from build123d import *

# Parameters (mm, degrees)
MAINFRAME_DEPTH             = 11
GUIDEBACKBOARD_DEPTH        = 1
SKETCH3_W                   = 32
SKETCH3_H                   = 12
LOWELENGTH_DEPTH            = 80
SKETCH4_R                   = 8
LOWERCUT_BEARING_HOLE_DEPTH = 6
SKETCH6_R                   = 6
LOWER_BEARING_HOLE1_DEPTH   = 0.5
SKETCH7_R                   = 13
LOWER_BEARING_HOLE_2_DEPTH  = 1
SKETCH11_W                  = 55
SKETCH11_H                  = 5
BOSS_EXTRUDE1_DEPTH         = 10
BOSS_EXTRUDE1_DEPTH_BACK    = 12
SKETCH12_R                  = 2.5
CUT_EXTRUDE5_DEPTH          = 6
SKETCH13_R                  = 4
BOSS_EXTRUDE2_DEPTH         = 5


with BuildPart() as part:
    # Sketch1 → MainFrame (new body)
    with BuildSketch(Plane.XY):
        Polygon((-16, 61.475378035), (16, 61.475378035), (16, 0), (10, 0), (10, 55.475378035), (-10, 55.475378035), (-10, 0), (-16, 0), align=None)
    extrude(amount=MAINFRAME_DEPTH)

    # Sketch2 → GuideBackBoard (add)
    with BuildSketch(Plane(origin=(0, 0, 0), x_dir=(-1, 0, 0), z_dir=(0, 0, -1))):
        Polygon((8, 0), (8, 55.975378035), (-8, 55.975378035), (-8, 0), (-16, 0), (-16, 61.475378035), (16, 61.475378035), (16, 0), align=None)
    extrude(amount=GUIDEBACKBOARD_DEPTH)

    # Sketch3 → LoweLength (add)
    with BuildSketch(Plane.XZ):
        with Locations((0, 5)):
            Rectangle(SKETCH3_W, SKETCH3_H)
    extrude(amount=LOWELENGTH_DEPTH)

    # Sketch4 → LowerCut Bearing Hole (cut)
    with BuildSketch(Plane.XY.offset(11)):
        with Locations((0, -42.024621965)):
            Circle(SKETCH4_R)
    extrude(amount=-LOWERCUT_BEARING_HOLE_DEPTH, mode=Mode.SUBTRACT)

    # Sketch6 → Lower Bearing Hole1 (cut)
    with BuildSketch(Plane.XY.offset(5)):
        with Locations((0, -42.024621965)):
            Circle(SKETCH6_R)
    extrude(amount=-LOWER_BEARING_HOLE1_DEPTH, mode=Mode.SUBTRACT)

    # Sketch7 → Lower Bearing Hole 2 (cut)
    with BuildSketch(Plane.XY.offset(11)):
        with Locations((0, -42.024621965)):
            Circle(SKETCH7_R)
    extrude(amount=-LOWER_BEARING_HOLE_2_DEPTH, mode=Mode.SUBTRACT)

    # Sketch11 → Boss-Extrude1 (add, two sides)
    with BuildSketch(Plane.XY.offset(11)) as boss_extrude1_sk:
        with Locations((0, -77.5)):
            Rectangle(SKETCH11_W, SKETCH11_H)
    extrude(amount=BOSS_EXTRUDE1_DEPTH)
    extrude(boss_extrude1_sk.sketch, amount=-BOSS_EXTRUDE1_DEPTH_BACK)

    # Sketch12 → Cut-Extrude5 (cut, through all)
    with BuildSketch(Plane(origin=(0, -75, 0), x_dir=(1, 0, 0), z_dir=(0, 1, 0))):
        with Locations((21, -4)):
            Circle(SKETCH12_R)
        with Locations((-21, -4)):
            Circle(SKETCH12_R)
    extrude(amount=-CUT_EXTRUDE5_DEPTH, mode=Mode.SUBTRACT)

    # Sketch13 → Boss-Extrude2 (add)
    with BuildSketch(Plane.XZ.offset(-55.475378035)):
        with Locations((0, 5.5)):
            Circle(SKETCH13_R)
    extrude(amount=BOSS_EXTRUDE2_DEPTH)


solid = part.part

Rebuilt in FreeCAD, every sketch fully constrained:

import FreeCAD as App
import Part
import Sketcher

V = App.Vector
Q = App.Units.Quantity


def add_polygon(sketch, points):
    """Adds a closed chain of lines whose ends are joined by coincident constraints."""
    first, n = sketch.GeometryCount, len(points)
    for a, b in zip(points, points[1:] + points[:1]):
        sketch.addGeometry(Part.LineSegment(App.Vector(*a, 0), App.Vector(*b, 0)), False)
    for i in range(n):
        sketch.addConstraint(Sketcher.Constraint("Coincident", first + i, 2, first + (i + 1) % n, 1))

doc = App.newDocument("Part")
body = doc.addObject("PartDesign::Body", "Body")

# Sketch on XY plane
sketch1 = body.newObject("Sketcher::SketchObject", "Sketch")
sketch1.AttachmentSupport = (doc.getObject("XY_Plane"), [""])
sketch1.MapMode = "FlatFace"
add_polygon(sketch1, [(16, 61.475378), (-16, 61.475378), (-16, 0), (-10, 0), (-10, 55.475378), (10, 55.475378), (10, 0), (16, 0)])  # lines 0-7
sketch1.addConstraint([
    Sketcher.Constraint("Horizontal", 0),
    Sketcher.Constraint("Vertical", 1),
    Sketcher.Constraint("Horizontal", 2),
    Sketcher.Constraint("Vertical", 3),
    Sketcher.Constraint("Horizontal", 4),
    Sketcher.Constraint("Vertical", 5),
    Sketcher.Constraint("Horizontal", 6),
    Sketcher.Constraint("Vertical", 7),
    Sketcher.Constraint("Symmetric", 2, 2, 5, 2, -1, 1),
    Sketcher.Constraint("Symmetric", 1, 2, 6, 2, -2),
    Sketcher.Constraint("DistanceX", 0, 2, 0, 1, Q("32 mm")),
    Sketcher.Constraint("DistanceX", 2, 1, 2, 2, Q("6 mm")),
    Sketcher.Constraint("DistanceY", 3, 2, 0, 2, Q("6 mm")),
    Sketcher.Constraint("DistanceY", 1, 2, 1, 1, Q("61.475378 mm")),
])
pad1 = body.newObject("PartDesign::Pad", "Pad")
pad1.Profile = sketch1
pad1.Length = 11

# Sketch on XY plane
sketch2 = body.newObject("Sketcher::SketchObject", "Sketch001")
sketch2.AttachmentSupport = (doc.getObject("XY_Plane"), [""])
sketch2.MapMode = "FlatFace"
add_polygon(sketch2, [(-8, 55.975378), (-8, 0), (-16, 0), (-16, 61.475378), (16, 61.475378), (16, 0), (8, 0), (8, 55.975378)])  # lines 0-7
sketch2.addConstraint([
    Sketcher.Constraint("Vertical", 0),
    Sketcher.Constraint("Horizontal", 1),
    Sketcher.Constraint("Vertical", 2),
    Sketcher.Constraint("Horizontal", 3),
    Sketcher.Constraint("Vertical", 4),
    Sketcher.Constraint("Horizontal", 5),
    Sketcher.Constraint("Vertical", 6),
    Sketcher.Constraint("Horizontal", 7),
    Sketcher.Constraint("Symmetric", 1, 2, 4, 2, -1, 1),
    Sketcher.Constraint("Symmetric", 0, 2, 5, 2, -2),
    Sketcher.Constraint("DistanceX", 1, 2, 1, 1, Q("8 mm")),
    Sketcher.Constraint("DistanceX", 3, 1, 3, 2, Q("32 mm")),
    Sketcher.Constraint("DistanceY", 6, 2, 3, 2, Q("5.5 mm")),
    Sketcher.Constraint("DistanceY", 0, 2, 0, 1, Q("55.975378 mm")),
])
pad2 = body.newObject("PartDesign::Pad", "Pad001")
pad2.Profile = sketch2
pad2.Length = 1
pad2.Reversed = True

# Sketch on XZ plane
sketch3 = body.newObject("Sketcher::SketchObject", "Sketch002")
sketch3.AttachmentSupport = (doc.getObject("XZ_Plane"), [""])
sketch3.MapMode = "FlatFace"
add_polygon(sketch3, [(-16, 11), (-16, -1), (16, -1), (16, 11)])  # lines 0-3
sketch3.addConstraint([
    Sketcher.Constraint("Vertical", 0),
    Sketcher.Constraint("Horizontal", 1),
    Sketcher.Constraint("Vertical", 2),
    Sketcher.Constraint("Horizontal", 3),
    Sketcher.Constraint("DistanceX", 1, 1, 1, 2, Q("32 mm")),
    Sketcher.Constraint("DistanceY", 0, 2, 0, 1, Q("12 mm")),
    Sketcher.Constraint("DistanceX", 0, 2, -1, 1, Q("16 mm")),
    Sketcher.Constraint("DistanceY", 0, 2, -1, 1, Q("1 mm")),
])
pad3 = body.newObject("PartDesign::Pad", "Pad002")
pad3.Profile = sketch3
pad3.Length = 80

# Sketch on XY plane
sketch4 = body.newObject("Sketcher::SketchObject", "Sketch003")
sketch4.AttachmentSupport = (doc.getObject("XY_Plane"), [""])
sketch4.MapMode = "FlatFace"
sketch4.AttachmentOffset = App.Placement(V(0, 0, 11), App.Rotation())
sketch4.addGeometry(Part.Circle(V(0, -42.024622, 0), V(0, 0, 1), 8), False)
sketch4.addConstraint([
    Sketcher.Constraint("PointOnObject", 0, 3, -2),
    Sketcher.Constraint("Diameter", 0, Q("16 mm")),
    Sketcher.Constraint("DistanceY", 0, 3, -1, 1, Q("42.024622 mm")),
])
pocket1 = body.newObject("PartDesign::Pocket", "Pocket")
pocket1.Profile = sketch4
pocket1.Length = 6

# Sketch on XY plane
sketch5 = body.newObject("Sketcher::SketchObject", "Sketch004")
sketch5.AttachmentSupport = (doc.getObject("XY_Plane"), [""])
sketch5.MapMode = "FlatFace"
sketch5.AttachmentOffset = App.Placement(V(0, 0, 5), App.Rotation())
sketch5.addGeometry(Part.Circle(V(0, -42.024622, 0), V(0, 0, 1), 6), False)
sketch5.addConstraint([
    Sketcher.Constraint("PointOnObject", 0, 3, -2),
    Sketcher.Constraint("Diameter", 0, Q("12 mm")),
    Sketcher.Constraint("DistanceY", 0, 3, -1, 1, Q("42.024622 mm")),
])
pocket2 = body.newObject("PartDesign::Pocket", "Pocket001")
pocket2.Profile = sketch5
pocket2.Length = 0.5

# Sketch on XY plane
sketch6 = body.newObject("Sketcher::SketchObject", "Sketch005")
sketch6.AttachmentSupport = (doc.getObject("XY_Plane"), [""])
sketch6.MapMode = "FlatFace"
sketch6.AttachmentOffset = App.Placement(V(0, 0, 11), App.Rotation())
sketch6.addGeometry(Part.Circle(V(0, -42.024622, 0), V(0, 0, 1), 13), False)
sketch6.addConstraint([
    Sketcher.Constraint("PointOnObject", 0, 3, -2),
    Sketcher.Constraint("Diameter", 0, Q("26 mm")),
    Sketcher.Constraint("DistanceY", 0, 3, -1, 1, Q("42.024622 mm")),
])
pocket3 = body.newObject("PartDesign::Pocket", "Pocket002")
pocket3.Profile = sketch6
pocket3.Length = 1

# Sketch on XY plane
sketch7 = body.newObject("Sketcher::SketchObject", "Sketch006")
sketch7.AttachmentSupport = (doc.getObject("XY_Plane"), [""])
sketch7.MapMode = "FlatFace"
sketch7.AttachmentOffset = App.Placement(V(0, 0, 11), App.Rotation())
add_polygon(sketch7, [(-27.5, -75), (-27.5, -80), (27.5, -80), (27.5, -75)])  # lines 0-3
sketch7.addConstraint([
    Sketcher.Constraint("Vertical", 0),
    Sketcher.Constraint("Horizontal", 1),
    Sketcher.Constraint("Vertical", 2),
    Sketcher.Constraint("Horizontal", 3),
    Sketcher.Constraint("DistanceX", 1, 1, 1, 2, Q("55 mm")),
    Sketcher.Constraint("DistanceY", 0, 2, 0, 1, Q("5 mm")),
    Sketcher.Constraint("DistanceY", 0, 2, -1, 1, Q("80 mm")),
    Sketcher.Constraint("DistanceX", 0, 2, -1, 1, Q("27.5 mm")),
])
pad4 = body.newObject("PartDesign::Pad", "Pad003")
pad4.Profile = sketch7
pad4.Type = "TwoLengths"
pad4.Length = 10
pad4.Length2 = 12

# Sketch on XZ plane
sketch8 = body.newObject("Sketcher::SketchObject", "Sketch007")
sketch8.AttachmentSupport = (doc.getObject("XZ_Plane"), [""])
sketch8.MapMode = "FlatFace"
sketch8.AttachmentOffset = App.Placement(V(0, 0, 75), App.Rotation())
sketch8.addGeometry([
    Part.Circle(V(21, 4, 0), V(0, 0, 1), 2.5),
    Part.Circle(V(-21, 4, 0), V(0, 0, 1), 2.5),
], False)
sketch8.addConstraint([
    Sketcher.Constraint("Equal", 0, 1),
    Sketcher.Constraint("Symmetric", 0, 3, 1, 3, -2),
    Sketcher.Constraint("Diameter", 0, Q("5 mm")),
    Sketcher.Constraint("DistanceX", -1, 1, 0, 3, Q("21 mm")),
    Sketcher.Constraint("DistanceY", -1, 1, 0, 3, Q("4 mm")),
])
pocket4 = body.newObject("PartDesign::Pocket", "Pocket003")
pocket4.Profile = sketch8
pocket4.Type = "ThroughAll"
pocket4.Reversed = True

# Sketch on XZ plane
sketch9 = body.newObject("Sketcher::SketchObject", "Sketch008")
sketch9.AttachmentSupport = (doc.getObject("XZ_Plane"), [""])
sketch9.MapMode = "FlatFace"
sketch9.AttachmentOffset = App.Placement(V(0, 0, -55.475378), App.Rotation())
sketch9.addGeometry(Part.Circle(V(0, 5.5, 0), V(0, 0, 1), 4), False)
sketch9.addConstraint([
    Sketcher.Constraint("PointOnObject", 0, 3, -2),
    Sketcher.Constraint("Diameter", 0, Q("8 mm")),
    Sketcher.Constraint("DistanceY", -1, 1, 0, 3, Q("5.5 mm")),
])
pad5 = body.newObject("PartDesign::Pad", "Pad004")
pad5.Profile = sketch9
pad5.Length = 5

doc.recompute()
